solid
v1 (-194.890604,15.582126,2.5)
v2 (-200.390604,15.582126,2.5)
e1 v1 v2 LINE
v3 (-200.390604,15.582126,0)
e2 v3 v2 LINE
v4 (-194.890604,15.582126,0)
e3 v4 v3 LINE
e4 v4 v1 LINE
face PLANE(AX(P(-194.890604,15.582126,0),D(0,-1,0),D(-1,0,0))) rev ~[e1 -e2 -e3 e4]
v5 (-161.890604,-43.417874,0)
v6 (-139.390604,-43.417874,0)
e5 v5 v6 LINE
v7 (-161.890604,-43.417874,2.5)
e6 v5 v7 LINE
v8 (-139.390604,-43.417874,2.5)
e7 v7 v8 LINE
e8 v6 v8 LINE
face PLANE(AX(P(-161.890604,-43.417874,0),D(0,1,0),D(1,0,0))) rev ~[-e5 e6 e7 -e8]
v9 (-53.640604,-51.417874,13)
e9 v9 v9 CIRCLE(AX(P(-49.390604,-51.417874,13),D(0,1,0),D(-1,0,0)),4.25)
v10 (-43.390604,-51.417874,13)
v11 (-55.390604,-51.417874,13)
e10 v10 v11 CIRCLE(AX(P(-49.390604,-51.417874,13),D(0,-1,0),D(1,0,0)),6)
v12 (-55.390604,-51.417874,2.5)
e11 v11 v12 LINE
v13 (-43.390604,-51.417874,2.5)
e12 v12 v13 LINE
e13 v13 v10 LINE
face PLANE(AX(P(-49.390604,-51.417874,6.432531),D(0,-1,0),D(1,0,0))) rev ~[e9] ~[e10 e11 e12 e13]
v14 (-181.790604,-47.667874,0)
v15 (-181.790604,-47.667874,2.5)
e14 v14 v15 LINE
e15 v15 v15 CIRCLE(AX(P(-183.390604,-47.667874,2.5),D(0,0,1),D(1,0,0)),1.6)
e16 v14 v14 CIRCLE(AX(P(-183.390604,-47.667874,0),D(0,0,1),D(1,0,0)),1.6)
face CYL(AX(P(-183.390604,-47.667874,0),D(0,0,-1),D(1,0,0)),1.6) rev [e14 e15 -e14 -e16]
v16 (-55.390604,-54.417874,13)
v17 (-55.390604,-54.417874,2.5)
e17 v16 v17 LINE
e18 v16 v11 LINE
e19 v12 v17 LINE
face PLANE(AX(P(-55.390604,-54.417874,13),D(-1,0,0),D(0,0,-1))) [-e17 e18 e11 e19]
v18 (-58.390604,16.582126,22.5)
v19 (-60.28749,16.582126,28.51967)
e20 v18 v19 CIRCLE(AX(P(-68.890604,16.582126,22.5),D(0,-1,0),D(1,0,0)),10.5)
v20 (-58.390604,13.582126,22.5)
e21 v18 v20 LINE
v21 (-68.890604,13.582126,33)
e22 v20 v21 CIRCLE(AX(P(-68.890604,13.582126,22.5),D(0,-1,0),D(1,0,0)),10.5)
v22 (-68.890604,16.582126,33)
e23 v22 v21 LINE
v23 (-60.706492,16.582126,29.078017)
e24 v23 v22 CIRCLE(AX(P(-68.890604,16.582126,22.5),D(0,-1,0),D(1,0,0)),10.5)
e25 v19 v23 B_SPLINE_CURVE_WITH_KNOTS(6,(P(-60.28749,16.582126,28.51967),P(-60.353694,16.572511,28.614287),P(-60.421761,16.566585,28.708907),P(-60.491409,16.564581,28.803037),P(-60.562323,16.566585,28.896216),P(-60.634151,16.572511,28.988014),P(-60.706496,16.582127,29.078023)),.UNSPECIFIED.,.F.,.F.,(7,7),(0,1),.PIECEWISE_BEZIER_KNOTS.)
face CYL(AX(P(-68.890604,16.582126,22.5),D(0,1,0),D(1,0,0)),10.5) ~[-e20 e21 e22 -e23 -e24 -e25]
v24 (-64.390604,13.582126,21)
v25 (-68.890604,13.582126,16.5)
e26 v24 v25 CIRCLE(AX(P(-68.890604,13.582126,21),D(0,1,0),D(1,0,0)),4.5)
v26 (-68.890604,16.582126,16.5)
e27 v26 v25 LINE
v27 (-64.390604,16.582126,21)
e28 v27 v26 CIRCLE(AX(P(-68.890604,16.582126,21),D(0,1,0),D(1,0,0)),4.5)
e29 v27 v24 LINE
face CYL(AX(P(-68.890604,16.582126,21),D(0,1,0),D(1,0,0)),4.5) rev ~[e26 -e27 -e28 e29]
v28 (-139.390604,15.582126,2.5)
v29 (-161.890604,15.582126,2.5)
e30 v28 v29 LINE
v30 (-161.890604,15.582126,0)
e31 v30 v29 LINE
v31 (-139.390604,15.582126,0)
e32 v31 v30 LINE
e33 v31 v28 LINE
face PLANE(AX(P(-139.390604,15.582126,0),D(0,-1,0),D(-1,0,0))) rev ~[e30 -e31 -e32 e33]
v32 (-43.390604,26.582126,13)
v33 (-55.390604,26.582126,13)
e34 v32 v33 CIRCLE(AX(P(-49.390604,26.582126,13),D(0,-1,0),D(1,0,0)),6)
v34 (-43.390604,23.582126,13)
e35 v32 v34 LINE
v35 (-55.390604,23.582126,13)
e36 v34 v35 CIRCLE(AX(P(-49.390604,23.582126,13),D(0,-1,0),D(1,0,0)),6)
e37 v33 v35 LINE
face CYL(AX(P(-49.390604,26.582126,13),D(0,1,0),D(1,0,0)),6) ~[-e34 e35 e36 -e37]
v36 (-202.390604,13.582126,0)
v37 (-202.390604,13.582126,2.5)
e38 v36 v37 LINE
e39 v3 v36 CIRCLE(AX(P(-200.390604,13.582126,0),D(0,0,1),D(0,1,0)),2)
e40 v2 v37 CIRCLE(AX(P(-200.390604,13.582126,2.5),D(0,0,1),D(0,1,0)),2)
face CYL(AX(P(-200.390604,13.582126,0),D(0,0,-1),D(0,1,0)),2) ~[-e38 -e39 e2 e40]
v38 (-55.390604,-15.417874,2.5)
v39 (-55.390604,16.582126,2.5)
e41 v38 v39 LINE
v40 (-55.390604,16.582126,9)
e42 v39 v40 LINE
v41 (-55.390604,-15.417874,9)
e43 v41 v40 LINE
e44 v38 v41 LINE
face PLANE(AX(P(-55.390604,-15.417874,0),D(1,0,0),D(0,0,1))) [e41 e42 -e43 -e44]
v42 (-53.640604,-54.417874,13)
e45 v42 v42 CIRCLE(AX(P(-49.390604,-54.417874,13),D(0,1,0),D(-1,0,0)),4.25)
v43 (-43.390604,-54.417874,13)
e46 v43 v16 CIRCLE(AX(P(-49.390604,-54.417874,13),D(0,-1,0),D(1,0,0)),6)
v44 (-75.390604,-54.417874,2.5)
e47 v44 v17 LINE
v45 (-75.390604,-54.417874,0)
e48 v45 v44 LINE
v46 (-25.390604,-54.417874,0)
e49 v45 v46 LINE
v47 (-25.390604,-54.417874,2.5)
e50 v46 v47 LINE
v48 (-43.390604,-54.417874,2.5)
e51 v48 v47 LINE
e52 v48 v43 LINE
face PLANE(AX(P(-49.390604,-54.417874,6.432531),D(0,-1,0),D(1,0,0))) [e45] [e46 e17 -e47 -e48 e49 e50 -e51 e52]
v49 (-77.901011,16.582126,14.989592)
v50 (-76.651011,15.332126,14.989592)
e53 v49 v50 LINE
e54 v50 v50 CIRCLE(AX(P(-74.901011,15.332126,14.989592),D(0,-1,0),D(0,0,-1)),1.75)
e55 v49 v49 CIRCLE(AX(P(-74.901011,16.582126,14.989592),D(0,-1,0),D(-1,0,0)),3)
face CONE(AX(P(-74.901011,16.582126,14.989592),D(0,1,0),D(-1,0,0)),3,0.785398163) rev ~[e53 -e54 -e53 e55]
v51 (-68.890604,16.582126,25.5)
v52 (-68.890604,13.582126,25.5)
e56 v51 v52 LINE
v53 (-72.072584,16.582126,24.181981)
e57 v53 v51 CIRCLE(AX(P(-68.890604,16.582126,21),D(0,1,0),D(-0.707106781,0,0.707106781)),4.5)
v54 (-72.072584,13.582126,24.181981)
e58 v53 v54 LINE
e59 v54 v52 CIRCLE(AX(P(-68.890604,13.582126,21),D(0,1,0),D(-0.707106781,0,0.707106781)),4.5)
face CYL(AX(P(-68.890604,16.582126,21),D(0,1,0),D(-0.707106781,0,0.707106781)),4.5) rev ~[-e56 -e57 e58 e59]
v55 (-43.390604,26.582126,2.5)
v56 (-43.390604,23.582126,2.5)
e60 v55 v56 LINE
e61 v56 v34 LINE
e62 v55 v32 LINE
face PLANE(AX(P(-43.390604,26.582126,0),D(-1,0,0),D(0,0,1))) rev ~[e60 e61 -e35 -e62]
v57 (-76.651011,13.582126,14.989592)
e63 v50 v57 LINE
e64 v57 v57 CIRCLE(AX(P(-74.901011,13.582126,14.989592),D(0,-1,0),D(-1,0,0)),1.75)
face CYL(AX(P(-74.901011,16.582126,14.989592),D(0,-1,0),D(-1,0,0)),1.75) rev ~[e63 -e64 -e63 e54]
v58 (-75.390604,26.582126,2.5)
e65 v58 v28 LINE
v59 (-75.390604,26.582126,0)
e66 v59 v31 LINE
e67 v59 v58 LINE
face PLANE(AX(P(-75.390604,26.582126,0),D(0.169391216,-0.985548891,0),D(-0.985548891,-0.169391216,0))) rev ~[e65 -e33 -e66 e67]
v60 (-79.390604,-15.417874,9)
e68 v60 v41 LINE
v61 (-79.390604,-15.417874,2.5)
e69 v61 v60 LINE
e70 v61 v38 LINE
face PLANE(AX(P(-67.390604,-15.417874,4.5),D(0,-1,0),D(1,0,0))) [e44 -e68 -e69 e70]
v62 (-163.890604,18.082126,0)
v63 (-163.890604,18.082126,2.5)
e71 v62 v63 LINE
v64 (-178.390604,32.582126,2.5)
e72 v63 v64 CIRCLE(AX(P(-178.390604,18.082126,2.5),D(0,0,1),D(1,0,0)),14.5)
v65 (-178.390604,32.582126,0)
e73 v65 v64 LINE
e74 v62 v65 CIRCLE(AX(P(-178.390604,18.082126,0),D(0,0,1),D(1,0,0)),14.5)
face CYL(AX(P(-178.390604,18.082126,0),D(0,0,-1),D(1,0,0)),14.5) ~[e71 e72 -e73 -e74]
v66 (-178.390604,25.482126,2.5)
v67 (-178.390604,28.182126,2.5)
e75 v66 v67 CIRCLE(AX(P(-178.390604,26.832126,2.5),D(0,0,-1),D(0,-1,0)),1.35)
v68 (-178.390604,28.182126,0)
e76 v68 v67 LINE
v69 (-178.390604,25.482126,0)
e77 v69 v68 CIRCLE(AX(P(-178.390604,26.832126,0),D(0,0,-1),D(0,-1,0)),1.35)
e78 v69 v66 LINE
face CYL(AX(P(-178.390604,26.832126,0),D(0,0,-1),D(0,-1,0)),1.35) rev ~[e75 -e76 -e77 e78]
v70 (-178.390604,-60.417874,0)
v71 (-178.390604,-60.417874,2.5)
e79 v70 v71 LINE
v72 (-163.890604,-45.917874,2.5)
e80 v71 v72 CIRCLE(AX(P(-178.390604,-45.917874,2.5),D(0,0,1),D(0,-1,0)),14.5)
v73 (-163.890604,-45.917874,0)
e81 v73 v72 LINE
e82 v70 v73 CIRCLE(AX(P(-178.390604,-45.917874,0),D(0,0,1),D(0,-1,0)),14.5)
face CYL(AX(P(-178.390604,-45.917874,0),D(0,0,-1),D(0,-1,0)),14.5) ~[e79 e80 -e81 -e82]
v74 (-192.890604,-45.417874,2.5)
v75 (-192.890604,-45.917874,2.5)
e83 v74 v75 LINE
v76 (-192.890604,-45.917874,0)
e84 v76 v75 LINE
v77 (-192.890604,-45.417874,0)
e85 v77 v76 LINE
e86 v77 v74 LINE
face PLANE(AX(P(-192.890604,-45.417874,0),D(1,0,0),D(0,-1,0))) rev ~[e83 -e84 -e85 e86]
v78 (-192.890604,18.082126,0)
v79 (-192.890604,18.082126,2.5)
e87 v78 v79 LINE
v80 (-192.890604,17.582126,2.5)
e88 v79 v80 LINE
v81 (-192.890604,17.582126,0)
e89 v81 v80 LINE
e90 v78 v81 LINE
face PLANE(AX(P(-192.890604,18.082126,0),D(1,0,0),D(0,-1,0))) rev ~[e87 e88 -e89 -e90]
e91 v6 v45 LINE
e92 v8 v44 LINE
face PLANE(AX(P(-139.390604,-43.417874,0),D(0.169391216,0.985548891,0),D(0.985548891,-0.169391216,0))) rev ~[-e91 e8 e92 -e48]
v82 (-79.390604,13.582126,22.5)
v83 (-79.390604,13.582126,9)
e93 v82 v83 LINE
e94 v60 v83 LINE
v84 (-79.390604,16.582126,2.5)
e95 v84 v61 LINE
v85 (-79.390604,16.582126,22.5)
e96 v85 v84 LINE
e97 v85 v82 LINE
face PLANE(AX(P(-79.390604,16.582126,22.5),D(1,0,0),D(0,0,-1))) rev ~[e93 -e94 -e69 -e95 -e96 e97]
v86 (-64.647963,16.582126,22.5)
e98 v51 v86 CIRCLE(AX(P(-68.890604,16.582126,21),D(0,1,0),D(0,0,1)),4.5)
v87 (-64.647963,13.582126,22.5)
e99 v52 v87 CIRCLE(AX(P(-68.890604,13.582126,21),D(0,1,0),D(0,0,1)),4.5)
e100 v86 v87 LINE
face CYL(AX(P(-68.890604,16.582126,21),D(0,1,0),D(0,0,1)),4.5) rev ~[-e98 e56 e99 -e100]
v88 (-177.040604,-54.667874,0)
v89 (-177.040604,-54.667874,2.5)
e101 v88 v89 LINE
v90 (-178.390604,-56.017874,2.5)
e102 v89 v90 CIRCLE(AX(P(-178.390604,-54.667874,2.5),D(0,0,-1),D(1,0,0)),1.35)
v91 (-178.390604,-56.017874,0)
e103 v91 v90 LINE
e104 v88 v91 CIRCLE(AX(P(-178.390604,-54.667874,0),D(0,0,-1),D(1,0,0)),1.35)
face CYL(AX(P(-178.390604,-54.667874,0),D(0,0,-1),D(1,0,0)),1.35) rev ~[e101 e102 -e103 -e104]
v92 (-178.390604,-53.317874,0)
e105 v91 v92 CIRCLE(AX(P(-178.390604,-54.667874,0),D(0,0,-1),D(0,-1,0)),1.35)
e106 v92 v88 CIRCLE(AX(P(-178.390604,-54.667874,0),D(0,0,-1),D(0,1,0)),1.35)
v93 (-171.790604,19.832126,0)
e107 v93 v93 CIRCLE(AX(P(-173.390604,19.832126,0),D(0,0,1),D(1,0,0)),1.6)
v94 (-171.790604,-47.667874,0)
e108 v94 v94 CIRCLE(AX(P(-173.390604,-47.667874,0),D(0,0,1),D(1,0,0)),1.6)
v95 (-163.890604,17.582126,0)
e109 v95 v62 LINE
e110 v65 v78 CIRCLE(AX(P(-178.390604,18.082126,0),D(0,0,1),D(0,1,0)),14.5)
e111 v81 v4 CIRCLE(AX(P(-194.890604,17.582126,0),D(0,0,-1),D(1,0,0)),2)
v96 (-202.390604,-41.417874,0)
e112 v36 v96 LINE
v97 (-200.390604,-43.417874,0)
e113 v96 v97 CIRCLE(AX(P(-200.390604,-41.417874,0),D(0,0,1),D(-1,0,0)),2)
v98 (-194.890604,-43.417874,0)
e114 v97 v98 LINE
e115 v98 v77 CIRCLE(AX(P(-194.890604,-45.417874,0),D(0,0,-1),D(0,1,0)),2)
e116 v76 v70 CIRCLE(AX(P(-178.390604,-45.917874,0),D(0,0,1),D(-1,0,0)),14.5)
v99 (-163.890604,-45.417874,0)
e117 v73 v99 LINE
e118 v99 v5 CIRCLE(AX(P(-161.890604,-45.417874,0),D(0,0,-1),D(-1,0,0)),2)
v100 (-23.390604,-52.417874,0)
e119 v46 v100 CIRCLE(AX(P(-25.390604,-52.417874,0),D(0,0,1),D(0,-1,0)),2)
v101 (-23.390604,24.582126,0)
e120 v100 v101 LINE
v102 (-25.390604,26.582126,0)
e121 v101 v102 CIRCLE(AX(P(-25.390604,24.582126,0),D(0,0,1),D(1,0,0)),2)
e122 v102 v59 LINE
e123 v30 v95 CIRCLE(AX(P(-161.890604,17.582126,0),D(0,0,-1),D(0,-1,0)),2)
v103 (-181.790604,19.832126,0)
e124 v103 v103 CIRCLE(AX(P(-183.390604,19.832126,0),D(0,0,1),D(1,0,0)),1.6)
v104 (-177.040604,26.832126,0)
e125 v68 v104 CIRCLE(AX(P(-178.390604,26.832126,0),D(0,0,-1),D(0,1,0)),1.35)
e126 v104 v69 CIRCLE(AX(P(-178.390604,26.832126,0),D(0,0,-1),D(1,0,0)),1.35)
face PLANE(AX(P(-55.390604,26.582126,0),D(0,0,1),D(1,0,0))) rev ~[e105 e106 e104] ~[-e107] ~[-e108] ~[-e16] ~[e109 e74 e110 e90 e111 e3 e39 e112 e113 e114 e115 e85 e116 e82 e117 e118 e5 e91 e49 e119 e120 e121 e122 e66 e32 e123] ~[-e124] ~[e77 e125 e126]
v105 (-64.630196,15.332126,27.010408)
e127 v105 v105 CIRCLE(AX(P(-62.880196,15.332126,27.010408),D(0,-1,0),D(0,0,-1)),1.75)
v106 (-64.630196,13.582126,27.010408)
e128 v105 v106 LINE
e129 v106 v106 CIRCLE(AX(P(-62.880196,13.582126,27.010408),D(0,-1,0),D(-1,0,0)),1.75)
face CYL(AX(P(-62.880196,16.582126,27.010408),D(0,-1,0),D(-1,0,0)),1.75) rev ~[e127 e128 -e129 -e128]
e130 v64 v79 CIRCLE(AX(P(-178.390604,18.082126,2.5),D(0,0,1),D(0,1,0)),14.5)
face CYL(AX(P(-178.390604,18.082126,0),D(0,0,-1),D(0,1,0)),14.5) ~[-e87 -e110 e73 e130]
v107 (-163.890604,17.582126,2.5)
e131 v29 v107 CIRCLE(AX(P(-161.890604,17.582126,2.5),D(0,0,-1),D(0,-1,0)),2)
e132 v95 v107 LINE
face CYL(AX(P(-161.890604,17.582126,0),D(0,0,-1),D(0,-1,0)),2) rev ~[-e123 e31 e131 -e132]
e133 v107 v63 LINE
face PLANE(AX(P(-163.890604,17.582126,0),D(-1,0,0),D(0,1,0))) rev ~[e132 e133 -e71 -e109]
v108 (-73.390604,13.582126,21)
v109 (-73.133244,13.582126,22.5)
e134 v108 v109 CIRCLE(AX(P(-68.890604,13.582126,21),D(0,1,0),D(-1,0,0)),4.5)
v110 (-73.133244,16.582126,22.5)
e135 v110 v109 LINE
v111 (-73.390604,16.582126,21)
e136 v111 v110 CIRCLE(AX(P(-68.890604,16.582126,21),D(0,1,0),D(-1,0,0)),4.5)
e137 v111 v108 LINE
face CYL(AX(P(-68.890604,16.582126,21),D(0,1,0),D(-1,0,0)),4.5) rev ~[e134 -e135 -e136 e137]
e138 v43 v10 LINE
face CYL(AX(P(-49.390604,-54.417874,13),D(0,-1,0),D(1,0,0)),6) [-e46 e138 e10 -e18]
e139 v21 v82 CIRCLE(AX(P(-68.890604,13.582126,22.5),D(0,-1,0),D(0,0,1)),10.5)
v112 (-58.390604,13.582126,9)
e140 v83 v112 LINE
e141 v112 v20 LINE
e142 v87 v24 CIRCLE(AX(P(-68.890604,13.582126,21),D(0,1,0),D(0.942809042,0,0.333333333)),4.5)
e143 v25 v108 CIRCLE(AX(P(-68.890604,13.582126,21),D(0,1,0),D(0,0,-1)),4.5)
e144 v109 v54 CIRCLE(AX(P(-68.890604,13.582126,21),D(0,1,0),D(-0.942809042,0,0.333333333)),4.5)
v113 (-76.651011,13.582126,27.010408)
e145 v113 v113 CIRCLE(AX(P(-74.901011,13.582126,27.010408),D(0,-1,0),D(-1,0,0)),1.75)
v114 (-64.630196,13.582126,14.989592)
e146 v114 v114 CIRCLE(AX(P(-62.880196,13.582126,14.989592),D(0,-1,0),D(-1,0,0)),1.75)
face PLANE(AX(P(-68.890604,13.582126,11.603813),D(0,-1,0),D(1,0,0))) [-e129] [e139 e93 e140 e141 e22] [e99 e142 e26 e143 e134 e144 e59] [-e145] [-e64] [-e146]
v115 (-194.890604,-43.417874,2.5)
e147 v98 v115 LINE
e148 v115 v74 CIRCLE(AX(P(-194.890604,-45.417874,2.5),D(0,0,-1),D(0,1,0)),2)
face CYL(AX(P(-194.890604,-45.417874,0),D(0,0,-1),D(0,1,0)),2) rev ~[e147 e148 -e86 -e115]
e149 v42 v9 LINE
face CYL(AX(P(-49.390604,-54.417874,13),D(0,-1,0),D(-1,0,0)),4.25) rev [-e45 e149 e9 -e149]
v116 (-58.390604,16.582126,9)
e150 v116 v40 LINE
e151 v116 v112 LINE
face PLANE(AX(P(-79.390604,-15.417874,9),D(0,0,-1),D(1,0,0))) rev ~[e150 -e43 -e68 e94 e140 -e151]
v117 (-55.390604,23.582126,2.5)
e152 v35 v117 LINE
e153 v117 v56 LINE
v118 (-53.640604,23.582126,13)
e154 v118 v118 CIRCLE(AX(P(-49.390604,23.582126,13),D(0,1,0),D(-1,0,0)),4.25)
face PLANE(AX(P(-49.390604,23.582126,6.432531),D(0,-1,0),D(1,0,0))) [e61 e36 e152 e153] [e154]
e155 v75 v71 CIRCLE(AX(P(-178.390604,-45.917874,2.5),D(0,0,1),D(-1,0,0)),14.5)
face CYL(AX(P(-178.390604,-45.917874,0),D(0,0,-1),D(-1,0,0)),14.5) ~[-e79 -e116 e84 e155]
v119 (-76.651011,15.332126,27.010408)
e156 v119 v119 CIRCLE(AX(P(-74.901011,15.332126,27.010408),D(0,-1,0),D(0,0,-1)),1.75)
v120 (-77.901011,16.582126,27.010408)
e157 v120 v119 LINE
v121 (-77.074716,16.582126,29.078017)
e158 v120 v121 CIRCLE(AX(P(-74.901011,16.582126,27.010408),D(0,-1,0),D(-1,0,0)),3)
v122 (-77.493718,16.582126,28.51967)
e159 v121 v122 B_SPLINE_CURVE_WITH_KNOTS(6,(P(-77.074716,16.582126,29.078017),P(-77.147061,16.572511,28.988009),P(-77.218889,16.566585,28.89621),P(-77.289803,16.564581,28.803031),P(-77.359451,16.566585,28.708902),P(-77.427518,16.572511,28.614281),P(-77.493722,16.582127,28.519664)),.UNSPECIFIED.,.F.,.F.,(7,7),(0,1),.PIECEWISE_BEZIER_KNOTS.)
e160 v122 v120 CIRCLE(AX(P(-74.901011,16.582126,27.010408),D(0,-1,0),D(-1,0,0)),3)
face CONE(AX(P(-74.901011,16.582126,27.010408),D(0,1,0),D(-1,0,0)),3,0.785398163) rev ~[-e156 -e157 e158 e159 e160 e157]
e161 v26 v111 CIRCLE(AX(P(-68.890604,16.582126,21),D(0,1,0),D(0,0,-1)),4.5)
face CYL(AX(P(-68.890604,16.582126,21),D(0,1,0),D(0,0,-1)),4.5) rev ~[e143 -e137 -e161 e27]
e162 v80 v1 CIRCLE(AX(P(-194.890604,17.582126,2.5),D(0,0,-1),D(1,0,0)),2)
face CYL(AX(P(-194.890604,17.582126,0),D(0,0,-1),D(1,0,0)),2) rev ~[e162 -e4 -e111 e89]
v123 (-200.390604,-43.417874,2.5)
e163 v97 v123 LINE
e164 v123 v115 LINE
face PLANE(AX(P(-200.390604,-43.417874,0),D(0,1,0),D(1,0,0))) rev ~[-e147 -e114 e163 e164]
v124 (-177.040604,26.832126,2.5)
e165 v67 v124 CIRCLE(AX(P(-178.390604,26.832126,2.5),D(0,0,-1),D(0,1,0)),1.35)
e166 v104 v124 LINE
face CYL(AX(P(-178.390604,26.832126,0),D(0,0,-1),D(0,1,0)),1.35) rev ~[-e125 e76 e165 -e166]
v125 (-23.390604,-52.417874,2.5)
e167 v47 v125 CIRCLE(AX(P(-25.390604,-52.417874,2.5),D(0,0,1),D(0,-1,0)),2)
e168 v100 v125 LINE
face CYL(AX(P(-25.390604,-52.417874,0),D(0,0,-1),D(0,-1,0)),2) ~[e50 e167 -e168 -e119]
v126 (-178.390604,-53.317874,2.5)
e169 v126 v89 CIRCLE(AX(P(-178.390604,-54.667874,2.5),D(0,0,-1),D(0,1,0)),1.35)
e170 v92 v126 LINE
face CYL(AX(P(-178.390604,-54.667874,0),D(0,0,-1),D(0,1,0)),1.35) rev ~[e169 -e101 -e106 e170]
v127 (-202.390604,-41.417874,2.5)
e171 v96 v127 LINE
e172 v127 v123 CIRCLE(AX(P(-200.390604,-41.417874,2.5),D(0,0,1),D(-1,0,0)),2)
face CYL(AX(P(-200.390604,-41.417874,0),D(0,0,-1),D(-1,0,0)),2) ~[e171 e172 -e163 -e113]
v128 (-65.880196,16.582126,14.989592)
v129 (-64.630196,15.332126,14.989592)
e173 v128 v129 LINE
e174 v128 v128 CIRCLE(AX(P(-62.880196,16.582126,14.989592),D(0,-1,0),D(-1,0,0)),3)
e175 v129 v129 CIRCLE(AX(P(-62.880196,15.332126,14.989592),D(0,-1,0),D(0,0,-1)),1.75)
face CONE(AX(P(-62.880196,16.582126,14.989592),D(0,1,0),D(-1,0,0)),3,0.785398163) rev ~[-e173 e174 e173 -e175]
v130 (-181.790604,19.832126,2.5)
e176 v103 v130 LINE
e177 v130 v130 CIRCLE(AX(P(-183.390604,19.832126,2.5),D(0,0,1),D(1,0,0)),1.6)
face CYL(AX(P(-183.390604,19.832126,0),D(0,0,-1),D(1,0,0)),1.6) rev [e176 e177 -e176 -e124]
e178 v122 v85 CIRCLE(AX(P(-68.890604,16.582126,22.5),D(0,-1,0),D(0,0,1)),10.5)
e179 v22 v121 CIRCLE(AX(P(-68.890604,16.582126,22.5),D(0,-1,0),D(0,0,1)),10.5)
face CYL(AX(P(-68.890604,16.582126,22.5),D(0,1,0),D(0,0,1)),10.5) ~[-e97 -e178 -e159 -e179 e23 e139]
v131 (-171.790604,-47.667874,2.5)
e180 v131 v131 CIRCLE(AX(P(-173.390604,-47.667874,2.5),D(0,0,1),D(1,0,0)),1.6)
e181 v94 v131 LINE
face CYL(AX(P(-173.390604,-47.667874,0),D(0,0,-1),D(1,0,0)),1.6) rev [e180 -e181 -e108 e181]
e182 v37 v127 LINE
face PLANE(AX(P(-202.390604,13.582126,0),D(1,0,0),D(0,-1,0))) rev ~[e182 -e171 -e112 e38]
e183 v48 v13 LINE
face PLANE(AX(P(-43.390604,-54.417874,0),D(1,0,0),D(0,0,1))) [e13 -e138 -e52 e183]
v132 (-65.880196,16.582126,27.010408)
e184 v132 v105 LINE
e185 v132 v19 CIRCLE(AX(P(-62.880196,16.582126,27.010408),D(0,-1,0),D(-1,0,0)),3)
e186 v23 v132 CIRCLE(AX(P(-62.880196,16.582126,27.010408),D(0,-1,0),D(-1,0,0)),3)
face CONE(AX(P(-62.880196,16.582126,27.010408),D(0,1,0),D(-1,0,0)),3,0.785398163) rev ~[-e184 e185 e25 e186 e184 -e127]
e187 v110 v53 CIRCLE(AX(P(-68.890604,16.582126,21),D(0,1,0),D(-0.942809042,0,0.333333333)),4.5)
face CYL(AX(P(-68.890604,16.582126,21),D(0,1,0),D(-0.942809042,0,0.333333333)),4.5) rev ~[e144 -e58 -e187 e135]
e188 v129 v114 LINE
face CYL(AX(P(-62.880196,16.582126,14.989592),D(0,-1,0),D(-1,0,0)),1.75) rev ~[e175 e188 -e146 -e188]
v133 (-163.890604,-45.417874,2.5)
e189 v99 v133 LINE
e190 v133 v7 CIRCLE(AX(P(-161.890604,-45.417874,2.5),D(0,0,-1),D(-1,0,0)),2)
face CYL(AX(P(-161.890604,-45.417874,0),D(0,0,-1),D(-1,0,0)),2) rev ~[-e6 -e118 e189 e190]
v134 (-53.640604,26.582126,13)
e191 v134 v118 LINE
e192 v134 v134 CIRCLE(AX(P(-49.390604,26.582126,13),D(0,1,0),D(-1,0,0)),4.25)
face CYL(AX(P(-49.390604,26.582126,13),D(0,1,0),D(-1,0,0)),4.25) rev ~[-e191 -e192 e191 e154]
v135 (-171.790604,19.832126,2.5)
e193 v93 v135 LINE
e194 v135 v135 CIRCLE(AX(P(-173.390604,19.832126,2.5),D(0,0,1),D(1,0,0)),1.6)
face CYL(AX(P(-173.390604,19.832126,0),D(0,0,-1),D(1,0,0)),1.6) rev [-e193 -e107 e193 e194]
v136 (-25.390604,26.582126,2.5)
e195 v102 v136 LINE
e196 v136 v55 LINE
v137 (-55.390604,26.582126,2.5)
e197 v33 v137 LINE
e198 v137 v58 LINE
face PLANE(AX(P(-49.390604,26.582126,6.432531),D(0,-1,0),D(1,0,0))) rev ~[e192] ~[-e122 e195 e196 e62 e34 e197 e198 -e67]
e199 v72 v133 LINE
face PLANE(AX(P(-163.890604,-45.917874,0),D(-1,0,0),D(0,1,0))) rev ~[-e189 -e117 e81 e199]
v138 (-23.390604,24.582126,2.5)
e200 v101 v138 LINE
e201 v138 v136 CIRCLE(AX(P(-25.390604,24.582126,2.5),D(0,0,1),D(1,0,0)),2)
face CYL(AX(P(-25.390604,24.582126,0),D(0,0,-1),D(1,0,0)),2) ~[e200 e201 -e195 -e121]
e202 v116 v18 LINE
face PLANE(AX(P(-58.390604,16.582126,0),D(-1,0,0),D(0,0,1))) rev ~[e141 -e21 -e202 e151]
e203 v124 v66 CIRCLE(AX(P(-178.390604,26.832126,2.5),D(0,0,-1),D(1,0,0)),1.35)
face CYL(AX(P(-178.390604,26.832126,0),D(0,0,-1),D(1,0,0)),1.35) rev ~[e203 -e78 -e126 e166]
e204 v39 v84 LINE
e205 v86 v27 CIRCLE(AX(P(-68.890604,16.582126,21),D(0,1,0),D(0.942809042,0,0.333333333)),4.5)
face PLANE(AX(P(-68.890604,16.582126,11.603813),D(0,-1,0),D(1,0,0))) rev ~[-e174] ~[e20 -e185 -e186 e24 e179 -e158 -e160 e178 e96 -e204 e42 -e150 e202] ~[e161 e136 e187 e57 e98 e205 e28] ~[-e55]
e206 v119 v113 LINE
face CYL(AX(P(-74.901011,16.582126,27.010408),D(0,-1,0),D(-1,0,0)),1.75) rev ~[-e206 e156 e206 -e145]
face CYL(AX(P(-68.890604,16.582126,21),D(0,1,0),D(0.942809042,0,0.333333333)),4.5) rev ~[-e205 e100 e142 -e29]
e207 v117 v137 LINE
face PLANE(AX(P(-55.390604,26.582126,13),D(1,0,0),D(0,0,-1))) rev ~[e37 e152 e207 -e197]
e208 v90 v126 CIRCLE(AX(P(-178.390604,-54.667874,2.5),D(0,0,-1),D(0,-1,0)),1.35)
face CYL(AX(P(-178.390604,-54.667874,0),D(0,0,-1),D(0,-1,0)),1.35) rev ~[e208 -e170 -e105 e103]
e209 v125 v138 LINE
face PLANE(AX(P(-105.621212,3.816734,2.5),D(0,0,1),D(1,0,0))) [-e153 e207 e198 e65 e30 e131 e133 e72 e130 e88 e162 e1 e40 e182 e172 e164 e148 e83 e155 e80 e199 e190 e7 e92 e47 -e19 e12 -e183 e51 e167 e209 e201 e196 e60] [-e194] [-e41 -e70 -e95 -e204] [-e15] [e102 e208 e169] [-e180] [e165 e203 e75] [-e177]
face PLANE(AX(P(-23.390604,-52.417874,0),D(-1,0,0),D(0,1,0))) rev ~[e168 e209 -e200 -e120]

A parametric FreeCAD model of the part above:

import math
import FreeCAD as App
import Part
import Sketcher

V = App.Vector
Q = App.Units.Quantity


def add_polygon(sketch, points):
    """Adds a closed chain of lines whose ends are joined by coincident constraints."""
    first, n = sketch.GeometryCount, len(points)
    for a, b in zip(points, points[1:] + points[:1]):
        sketch.addGeometry(Part.LineSegment(App.Vector(*a, 0), App.Vector(*b, 0)), False)
    for i in range(n):
        sketch.addConstraint(Sketcher.Constraint("Coincident", first + i, 2, first + (i + 1) % n, 1))

doc = App.newDocument("Part")
body = doc.addObject("PartDesign::Body", "Body")

sketch1 = doc.addObject("Sketcher::SketchObject", "Sketch")
body.addObject(sketch1)
sketch1.AttachmentSupport = (doc.XY_Plane, [""])
sketch1.MapMode = "FlatFace"
sketch1.addGeometry(Part.LineSegment(V(-75.4, 26.6, 0), V(-139.4, 15.6, 0)), False)
sketch1.addGeometry(Part.LineSegment(V(-139.4, 15.6, 0), V(-161.9, 15.6, 0)), False)
sketch1.addGeometry(Part.ArcOfCircle(Part.Circle(V(-161.9, 17.6, 0), V(0, 0, 1), 2), math.radians(180), math.radians(270)), False)
sketch1.addGeometry(Part.LineSegment(V(-163.9, 17.6, 0), V(-163.9, 18.1, 0)), False)
sketch1.addGeometry(Part.ArcOfCircle(Part.Circle(V(-178.4, 18.1, 0), V(0, 0, 1), 14.5), math.radians(0), math.radians(90)), False)
sketch1.addGeometry(Part.ArcOfCircle(Part.Circle(V(-178.4, 18.1, 0), V(0, 0, 1), 14.5), math.radians(90), math.radians(180)), False)
sketch1.addGeometry(Part.LineSegment(V(-192.9, 18.1, 0), V(-192.9, 17.6, 0)), False)
sketch1.addGeometry(Part.ArcOfCircle(Part.Circle(V(-194.9, 17.6, 0), V(0, 0, 1), 2), math.radians(-90), math.radians(0)), False)
sketch1.addGeometry(Part.LineSegment(V(-194.9, 15.6, 0), V(-200.4, 15.6, 0)), False)
sketch1.addGeometry(Part.ArcOfCircle(Part.Circle(V(-200.4, 13.6, 0), V(0, 0, 1), 2), math.radians(90), math.radians(180)), False)
sketch1.addGeometry(Part.LineSegment(V(-202.4, 13.6, 0), V(-202.4, -41.4, 0)), False)
sketch1.addGeometry(Part.ArcOfCircle(Part.Circle(V(-200.4, -41.4, 0), V(0, 0, 1), 2), math.radians(180), math.radians(270)), False)
sketch1.addGeometry(Part.LineSegment(V(-200.4, -43.4, 0), V(-194.9, -43.4, 0)), False)
sketch1.addGeometry(Part.ArcOfCircle(Part.Circle(V(-194.9, -45.4, 0), V(0, 0, 1), 2), math.radians(0), math.radians(90)), False)
sketch1.addGeometry(Part.LineSegment(V(-192.9, -45.4, 0), V(-192.9, -45.9, 0)), False)
sketch1.addGeometry(Part.ArcOfCircle(Part.Circle(V(-178.4, -45.9, 0), V(0, 0, 1), 14.5), math.radians(180), math.radians(270)), False)
sketch1.addGeometry(Part.ArcOfCircle(Part.Circle(V(-178.4, -45.9, 0), V(0, 0, 1), 14.5), math.radians(-90), math.radians(0)), False)
sketch1.addGeometry(Part.LineSegment(V(-163.9, -45.9, 0), V(-163.9, -45.4, 0)), False)
sketch1.addGeometry(Part.ArcOfCircle(Part.Circle(V(-161.9, -45.4, 0), V(0, 0, 1), 2), math.radians(90), math.radians(180)), False)
sketch1.addGeometry(Part.LineSegment(V(-161.9, -43.4, 0), V(-139.4, -43.4, 0)), False)
sketch1.addGeometry(Part.LineSegment(V(-139.4, -43.4, 0), V(-75.4, -54.4, 0)), False)
sketch1.addGeometry(Part.LineSegment(V(-75.4, -54.4, 0), V(-25.4, -54.4, 0)), False)
sketch1.addGeometry(Part.ArcOfCircle(Part.Circle(V(-25.4, -52.4, 0), V(0, 0, 1), 2), math.radians(-90), math.radians(0)), False)
sketch1.addGeometry(Part.LineSegment(V(-23.4, -52.4, 0), V(-23.4, 24.6, 0)), False)
sketch1.addGeometry(Part.ArcOfCircle(Part.Circle(V(-25.4, 24.6, 0), V(0, 0, 1), 2), math.radians(0), math.radians(90)), False)
sketch1.addGeometry(Part.LineSegment(V(-25.4, 26.6, 0), V(-75.4, 26.6, 0)), False)
sketch1.addGeometry(Part.Circle(V(-183.4, -47.7, 0), V(0, 0, 1), 1.6), False)
sketch1.addGeometry(Part.ArcOfCircle(Part.Circle(V(-178.4, -54.7, 0), V(0, 0, 1), 1.4), math.radians(0), math.radians(90)), False)
sketch1.addGeometry(Part.ArcOfCircle(Part.Circle(V(-178.4, -54.7, 0), V(0, 0, 1), 1.4), math.radians(-90), math.radians(0)), False)
sketch1.addGeometry(Part.ArcOfCircle(Part.Circle(V(-178.4, -54.7, 0), V(0, 0, 1), 1.4), math.radians(90), math.radians(270)), False)
sketch1.addGeometry(Part.Circle(V(-173.4, -47.7, 0), V(0, 0, 1), 1.6), False)
sketch1.addGeometry(Part.Circle(V(-183.4, 19.8, 0), V(0, 0, 1), 1.6), False)
sketch1.addGeometry(Part.ArcOfCircle(Part.Circle(V(-178.4, 26.8, 0), V(0, 0, 1), 1.4), math.radians(0), math.radians(90)), False)
sketch1.addGeometry(Part.ArcOfCircle(Part.Circle(V(-178.4, 26.8, 0), V(0, 0, 1), 1.4), math.radians(-90), math.radians(0)), False)
sketch1.addGeometry(Part.ArcOfCircle(Part.Circle(V(-178.4, 26.8, 0), V(0, 0, 1), 1.4), math.radians(90), math.radians(270)), False)
sketch1.addGeometry(Part.Circle(V(-173.4, 19.8, 0), V(0, 0, 1), 1.6), False)
sketch1.addConstraint(Sketcher.Constraint("Coincident", 0, 2, 1, 1))
sketch1.addConstraint(Sketcher.Constraint("Tangent", 1, 2, 2, 2))
sketch1.addConstraint(Sketcher.Constraint("Tangent", 2, 1, 3, 1))
sketch1.addConstraint(Sketcher.Constraint("Tangent", 3, 2, 4, 1))
sketch1.addConstraint(Sketcher.Constraint("Tangent", 4, 2, 5, 1))
sketch1.addConstraint(Sketcher.Constraint("Tangent", 5, 2, 6, 1))
sketch1.addConstraint(Sketcher.Constraint("Tangent", 6, 2, 7, 2))
sketch1.addConstraint(Sketcher.Constraint("Tangent", 7, 1, 8, 1))
sketch1.addConstraint(Sketcher.Constraint("Tangent", 8, 2, 9, 1))
sketch1.addConstraint(Sketcher.Constraint("Tangent", 9, 2, 10, 1))
sketch1.addConstraint(Sketcher.Constraint("Tangent", 10, 2, 11, 1))
sketch1.addConstraint(Sketcher.Constraint("Tangent", 11, 2, 12, 1))
sketch1.addConstraint(Sketcher.Constraint("Tangent", 12, 2, 13, 2))
sketch1.addConstraint(Sketcher.Constraint("Tangent", 13, 1, 14, 1))
sketch1.addConstraint(Sketcher.Constraint("Tangent", 14, 2, 15, 1))
sketch1.addConstraint(Sketcher.Constraint("Tangent", 15, 2, 16, 1))
sketch1.addConstraint(Sketcher.Constraint("Tangent", 16, 2, 17, 1))
sketch1.addConstraint(Sketcher.Constraint("Tangent", 17, 2, 18, 2))
sketch1.addConstraint(Sketcher.Constraint("Tangent", 18, 1, 19, 1))
sketch1.addConstraint(Sketcher.Constraint("Coincident", 19, 2, 20, 1))
sketch1.addConstraint(Sketcher.Constraint("Coincident", 20, 2, 21, 1))
sketch1.addConstraint(Sketcher.Constraint("Tangent", 21, 2, 22, 1))
sketch1.addConstraint(Sketcher.Constraint("Tangent", 22, 2, 23, 1))
sketch1.addConstraint(Sketcher.Constraint("Tangent", 23, 2, 24, 1))
sketch1.addConstraint(Sketcher.Constraint("Tangent", 24, 2, 25, 1))
sketch1.addConstraint(Sketcher.Constraint("Coincident", 25, 2, 0, 1))
sketch1.addConstraint(Sketcher.Constraint("Tangent", 27, 1, 28, 2))
sketch1.addConstraint(Sketcher.Constraint("Tangent", 28, 1, 29, 2))
sketch1.addConstraint(Sketcher.Constraint("Tangent", 29, 1, 27, 2))
sketch1.addConstraint(Sketcher.Constraint("Tangent", 32, 1, 33, 2))
sketch1.addConstraint(Sketcher.Constraint("Tangent", 33, 1, 34, 2))
sketch1.addConstraint(Sketcher.Constraint("Tangent", 34, 1, 32, 2))
sketch1.addConstraint(Sketcher.Constraint("Horizontal", 1))
sketch1.addConstraint(Sketcher.Constraint("Vertical", 3))
sketch1.addConstraint(Sketcher.Constraint("Vertical", 6))
sketch1.addConstraint(Sketcher.Constraint("Horizontal", 8))
sketch1.addConstraint(Sketcher.Constraint("Vertical", 10))
sketch1.addConstraint(Sketcher.Constraint("Horizontal", 12))
sketch1.addConstraint(Sketcher.Constraint("Vertical", 14))
sketch1.addConstraint(Sketcher.Constraint("Vertical", 17))
sketch1.addConstraint(Sketcher.Constraint("Horizontal", 19))
sketch1.addConstraint(Sketcher.Constraint("Horizontal", 21))
sketch1.addConstraint(Sketcher.Constraint("Vertical", 23))
sketch1.addConstraint(Sketcher.Constraint("Horizontal", 25))
sketch1.addConstraint(Sketcher.Constraint("Equal", 4, 5))
sketch1.addConstraint(Sketcher.Constraint("Equal", 2, 7))
sketch1.addConstraint(Sketcher.Constraint("Equal", 7, 9))
sketch1.addConstraint(Sketcher.Constraint("Equal", 9, 11))
sketch1.addConstraint(Sketcher.Constraint("Equal", 11, 13))
sketch1.addConstraint(Sketcher.Constraint("Equal", 5, 15))
sketch1.addConstraint(Sketcher.Constraint("Equal", 15, 16))
sketch1.addConstraint(Sketcher.Constraint("Equal", 13, 18))
sketch1.addConstraint(Sketcher.Constraint("Equal", 18, 22))
sketch1.addConstraint(Sketcher.Constraint("Equal", 22, 24))
sketch1.addConstraint(Sketcher.Constraint("Equal", 26, 30))
sketch1.addConstraint(Sketcher.Constraint("Equal", 30, 31))
sketch1.addConstraint(Sketcher.Constraint("Equal", 29, 32))
sketch1.addConstraint(Sketcher.Constraint("Equal", 31, 35))
sketch1.addConstraint(Sketcher.Constraint("Horizontal", 2, 3, 7, 3))
sketch1.addConstraint(Sketcher.Constraint("Horizontal", 13, 3, 18, 3))
sketch1.addConstraint(Sketcher.Constraint("Horizontal", 26, 3, 30, 3))
sketch1.addConstraint(Sketcher.Constraint("Horizontal", 31, 3, 35, 3))
sketch1.addConstraint(Sketcher.Constraint("Horizontal", 29, 3, 27, 1))
sketch1.addConstraint(Sketcher.Constraint("Horizontal", 34, 3, 32, 1))
sketch1.addConstraint(Sketcher.Constraint("Vertical", 7, 3, 13, 3))
sketch1.addConstraint(Sketcher.Constraint("Vertical", 16, 3, 27, 3))
sketch1.addConstraint(Sketcher.Constraint("Vertical", 26, 3, 31, 3))
sketch1.addConstraint(Sketcher.Constraint("Vertical", 29, 3, 32, 3))
sketch1.addConstraint(Sketcher.Constraint("Vertical", 30, 3, 35, 3))
sketch1.addConstraint(Sketcher.Constraint("Vertical", 34, 3, 4, 2))
sketch1.addConstraint(Sketcher.Constraint("Vertical", 4, 2, 15, 2))
sketch1.addConstraint(Sketcher.Constraint("Vertical", 0, 2, 19, 2))
sketch1.addConstraint(Sketcher.Constraint("Vertical", 20, 2, 25, 2))
sketch1.addConstraint(Sketcher.Constraint("Vertical", 15, 2, 28, 1))
sketch1.addConstraint(Sketcher.Constraint("Vertical", 28, 1, 29, 1))
sketch1.addConstraint(Sketcher.Constraint("Vertical", 29, 1, 33, 1))
sketch1.addConstraint(Sketcher.Constraint("Vertical", 33, 1, 34, 1))
sketch1.addConstraint(Sketcher.Constraint("Equal", 6, 14))
sketch1.addConstraint(Sketcher.Constraint("Equal", 0, 20))
sketch1.addConstraint(Sketcher.Constraint("Radius", 2, Q("2 mm")))
sketch1.addConstraint(Sketcher.Constraint("Diameter", 26, Q("3.2 mm")))
sketch1.addConstraint(Sketcher.Constraint("Radius", 4, Q("14.5 mm")))
sketch1.addConstraint(Sketcher.Constraint("DistanceX", 21, 1, 21, 2, Q("50 mm")))
sketch1.addConstraint(Sketcher.Constraint("DistanceY", 10, 2, 10, 1, Q("55 mm")))
sketch1.addConstraint(Sketcher.Constraint("DistanceY", 23, 1, 23, 2, Q("77 mm")))
sketch1.addConstraint(Sketcher.Constraint("Radius", 27, Q("1.35 mm")))
sketch1.addConstraint(Sketcher.Constraint("DistanceX", 1, 2, 1, 1, Q("22.5 mm")))
sketch1.addConstraint(Sketcher.Constraint("DistanceX", 8, 2, 8, 1, Q("5.5 mm")))
sketch1.addConstraint(Sketcher.Constraint("DistanceY", 3, 1, 3, 2, Q("0.5 mm")))
sketch1.addConstraint(Sketcher.Constraint("DistanceX", 15, 3, 22, 3, Q("153 mm")))
sketch1.addConstraint(Sketcher.Constraint("DistanceX", 26, 3, 15, 3, Q("5 mm")))
sketch1.addConstraint(Sketcher.Constraint("DistanceY", 27, 3, 26, 3, Q("7 mm")))
sketch1.addConstraint(Sketcher.Constraint("DistanceX", 15, 3, 30, 3, Q("5 mm")))
sketch1.addConstraint(Sketcher.Constraint("DistanceY", 31, 3, 32, 3, Q("7 mm")))
sketch1.addConstraint(Sketcher.Constraint("DistanceY", 15, 2, 28, 1, Q("4.4 mm")))
sketch1.addConstraint(Sketcher.Constraint("DistanceY", 33, 1, 4, 2, Q("7.1 mm")))
sketch1.addConstraint(Sketcher.Constraint("DistanceX", 2, 3, -1, 1, Q("161.890604 mm")))
sketch1.addConstraint(Sketcher.Constraint("DistanceY", -1, 1, 2, 3, Q("17.582126 mm")))
pad1 = doc.addObject("PartDesign::Pad", "Pad")
body.addObject(pad1)
pad1.Profile = sketch1
pad1.Length = 2.5

sketch2 = doc.addObject("Sketcher::SketchObject", "Sketch001")
body.addObject(sketch2)
sketch2.AttachmentSupport = (doc.XZ_Plane, [""])
sketch2.MapMode = "FlatFace"
sketch2.AttachmentOffset = App.Placement(V(0, 0, 54.417874), App.Rotation())
sketch2.addGeometry(Part.LineSegment(V(-55.4, 13, 0), V(-55.4, 0, 0)), False)
sketch2.addGeometry(Part.LineSegment(V(-55.4, 0, 0), V(-43.4, 0, 0)), False)
sketch2.addGeometry(Part.LineSegment(V(-43.4, 0, 0), V(-43.4, 13, 0)), False)
sketch2.addGeometry(Part.ArcOfCircle(Part.Circle(V(-49.4, 13, 0), V(0, 0, 1), 6), math.radians(0), math.radians(180)), False)
sketch2.addGeometry(Part.Circle(V(-49.4, 13, 0), V(0, 0, 1), 4.2), False)
sketch2.addConstraint(Sketcher.Constraint("Coincident", 0, 2, 1, 1))
sketch2.addConstraint(Sketcher.Constraint("Coincident", 1, 2, 2, 1))
sketch2.addConstraint(Sketcher.Constraint("Tangent", 2, 2, 3, 1))
sketch2.addConstraint(Sketcher.Constraint("Tangent", 3, 2, 0, 1))
sketch2.addConstraint(Sketcher.Constraint("Vertical", 0))
sketch2.addConstraint(Sketcher.Constraint("Horizontal", 1))
sketch2.addConstraint(Sketcher.Constraint("Vertical", 2))
sketch2.addConstraint(Sketcher.Constraint("Coincident", 4, 3, 3, 3))
sketch2.addConstraint(Sketcher.Constraint("PointOnObject", 0, 2, -1))
sketch2.addConstraint(Sketcher.Constraint("Radius", 3, Q("6 mm")))
sketch2.addConstraint(Sketcher.Constraint("Diameter", 4, Q("8.5 mm")))
sketch2.addConstraint(Sketcher.Constraint("DistanceY", 0, 2, 0, 1, Q("13 mm")))
sketch2.addConstraint(Sketcher.Constraint("DistanceX", 3, 3, -1, 1, Q("49.390604 mm")))
pad2 = doc.addObject("PartDesign::Pad", "Pad001")
body.addObject(pad2)
pad2.Profile = sketch2
pad2.Length = 3
pad2.Reversed = True

sketch3 = doc.addObject("Sketcher::SketchObject", "Sketch002")
body.addObject(sketch3)
sketch3.AttachmentSupport = (doc.XZ_Plane, [""])
sketch3.MapMode = "FlatFace"
sketch3.AttachmentOffset = App.Placement(V(0, 0, -26.582126), App.Rotation())
sketch3.addGeometry(Part.LineSegment(V(-55.4, 13, 0), V(-55.4, 0, 0)), False)
sketch3.addGeometry(Part.LineSegment(V(-55.4, 0, 0), V(-43.4, 0, 0)), False)
sketch3.addGeometry(Part.LineSegment(V(-43.4, 0, 0), V(-43.4, 13, 0)), False)
sketch3.addGeometry(Part.ArcOfCircle(Part.Circle(V(-49.4, 13, 0), V(0, 0, 1), 6), math.radians(0), math.radians(180)), False)
sketch3.addGeometry(Part.Circle(V(-49.4, 13, 0), V(0, 0, 1), 4.2), False)
sketch3.addConstraint(Sketcher.Constraint("Coincident", 0, 2, 1, 1))
sketch3.addConstraint(Sketcher.Constraint("Coincident", 1, 2, 2, 1))
sketch3.addConstraint(Sketcher.Constraint("Tangent", 2, 2, 3, 1))
sketch3.addConstraint(Sketcher.Constraint("Tangent", 3, 2, 0, 1))
sketch3.addConstraint(Sketcher.Constraint("Vertical", 0))
sketch3.addConstraint(Sketcher.Constraint("Horizontal", 1))
sketch3.addConstraint(Sketcher.Constraint("Vertical", 2))
sketch3.addConstraint(Sketcher.Constraint("Coincident", 4, 3, 3, 3))
sketch3.addConstraint(Sketcher.Constraint("PointOnObject", 0, 2, -1))
sketch3.addConstraint(Sketcher.Constraint("Radius", 3, Q("6 mm")))
sketch3.addConstraint(Sketcher.Constraint("Diameter", 4, Q("8.5 mm")))
sketch3.addConstraint(Sketcher.Constraint("DistanceY", 0, 2, 0, 1, Q("13 mm")))
sketch3.addConstraint(Sketcher.Constraint("DistanceX", 3, 3, -1, 1, Q("49.390604 mm")))
pad3 = doc.addObject("PartDesign::Pad", "Pad002")
body.addObject(pad3)
pad3.Profile = sketch3
pad3.Length = 3

sketch4 = doc.addObject("Sketcher::SketchObject", "Sketch003")
body.addObject(sketch4)
sketch4.AttachmentSupport = (doc.XZ_Plane, [""])
sketch4.MapMode = "FlatFace"
sketch4.AttachmentOffset = App.Placement(V(0, 0, -16.582126), App.Rotation())
sketch4.addGeometry(Part.LineSegment(V(-79.4, 22.5, 0), V(-79.4, 0, 0)), False)
sketch4.addGeometry(Part.LineSegment(V(-79.4, 0, 0), V(-58.4, 0, 0)), False)
sketch4.addGeometry(Part.LineSegment(V(-58.4, 0, 0), V(-58.4, 22.5, 0)), False)
sketch4.addGeometry(Part.ArcOfCircle(Part.Circle(V(-68.9, 22.5, 0), V(0, 0, 1), 10.5), math.radians(0), math.radians(90)), False)
sketch4.addGeometry(Part.ArcOfCircle(Part.Circle(V(-68.9, 22.5, 0), V(0, 0, 1), 10.5), math.radians(90), math.radians(180)), False)
sketch4.addGeometry(Part.ArcOfCircle(Part.Circle(V(-68.9, 21, 0), V(0, 0, 1), 4.5), math.radians(0), math.radians(19.47)), False)
sketch4.addGeometry(Part.ArcOfCircle(Part.Circle(V(-68.9, 21, 0), V(0, 0, 1), 4.5), math.radians(-90), math.radians(0)), False)
sketch4.addGeometry(Part.ArcOfCircle(Part.Circle(V(-68.9, 21, 0), V(0, 0, 1), 4.5), math.radians(180), math.radians(270)), False)
sketch4.addGeometry(Part.ArcOfCircle(Part.Circle(V(-68.9, 21, 0), V(0, 0, 1), 4.5), math.radians(160.53), math.radians(180)), False)
sketch4.addGeometry(Part.ArcOfCircle(Part.Circle(V(-68.9, 21, 0), V(0, 0, 1), 4.5), math.radians(135), math.radians(161)), False)
sketch4.addGeometry(Part.ArcOfCircle(Part.Circle(V(-68.9, 21, 0), V(0, 0, 1), 4.5), math.radians(90), math.radians(135)), False)
sketch4.addGeometry(Part.ArcOfCircle(Part.Circle(V(-68.9, 21, 0), V(0, 0, 1), 4.5), math.radians(19), math.radians(90)), False)
sketch4.addConstraint(Sketcher.Constraint("Coincident", 0, 2, 1, 1))
sketch4.addConstraint(Sketcher.Constraint("Coincident", 1, 2, 2, 1))
sketch4.addConstraint(Sketcher.Constraint("Tangent", 2, 2, 3, 1))
sketch4.addConstraint(Sketcher.Constraint("Tangent", 3, 2, 4, 1))
sketch4.addConstraint(Sketcher.Constraint("Tangent", 4, 2, 0, 1))
sketch4.addConstraint(Sketcher.Constraint("Tangent", 5, 1, 6, 2))
sketch4.addConstraint(Sketcher.Constraint("Tangent", 6, 1, 7, 2))
sketch4.addConstraint(Sketcher.Constraint("Tangent", 7, 1, 8, 2))
sketch4.addConstraint(Sketcher.Constraint("Tangent", 8, 1, 9, 2))
sketch4.addConstraint(Sketcher.Constraint("Tangent", 9, 1, 10, 2))
sketch4.addConstraint(Sketcher.Constraint("Tangent", 10, 1, 11, 2))
sketch4.addConstraint(Sketcher.Constraint("Tangent", 11, 1, 5, 2))
sketch4.addConstraint(Sketcher.Constraint("Vertical", 0))
sketch4.addConstraint(Sketcher.Constraint("Horizontal", 1))
sketch4.addConstraint(Sketcher.Constraint("Vertical", 2))
sketch4.addConstraint(Sketcher.Constraint("Coincident", 7, 3, 5, 3))
sketch4.addConstraint(Sketcher.Constraint("Coincident", 9, 3, 5, 3))
sketch4.addConstraint(Sketcher.Constraint("Equal", 3, 4))
sketch4.addConstraint(Sketcher.Constraint("PointOnObject", 0, 2, -1))
sketch4.addConstraint(Sketcher.Constraint("Horizontal", 11, 3, 5, 1))
sketch4.addConstraint(Sketcher.Constraint("Horizontal", 5, 1, 7, 1))
sketch4.addConstraint(Sketcher.Constraint("Horizontal", 4, 2, 8, 1))
sketch4.addConstraint(Sketcher.Constraint("Horizontal", 8, 1, 11, 1))
sketch4.addConstraint(Sketcher.Constraint("Vertical", 4, 3, 5, 3))
sketch4.addConstraint(Sketcher.Constraint("Vertical", 11, 3, 3, 2))
sketch4.addConstraint(Sketcher.Constraint("Vertical", 3, 2, 6, 1))
sketch4.addConstraint(Sketcher.Constraint("Vertical", 6, 1, 10, 1))
sketch4.addConstraint(Sketcher.Constraint("Radius", 3, Q("10.5 mm")))
sketch4.addConstraint(Sketcher.Constraint("Radius", 5, Q("4.5 mm")))
sketch4.addConstraint(Sketcher.Constraint("DistanceY", 0, 2, 0, 1, Q("22.5 mm")))
sketch4.addConstraint(Sketcher.Constraint("DistanceY", -1, 1, 5, 3, Q("21 mm")))
sketch4.addConstraint(Sketcher.Constraint("DistanceY", -1, 1, 9, 1, Q("24.181981 mm")))
sketch4.addConstraint(Sketcher.Constraint("DistanceX", 3, 3, -1, 1, Q("68.890604 mm")))
pad4 = doc.addObject("PartDesign::Pad", "Pad003")
body.addObject(pad4)
pad4.Profile = sketch4
pad4.Length = 3

sketch5 = doc.addObject("Sketcher::SketchObject", "Sketch004")
body.addObject(sketch5)
sketch5.AttachmentSupport = (doc.XZ_Plane, [""])
sketch5.MapMode = "FlatFace"
sketch5.AttachmentOffset = App.Placement(V(0, 0, -16.582126), App.Rotation())
sketch5.addGeometry(Part.Circle(V(-74.9, 27, 0), V(0, 0, 1), 1.8), False)
sketch5.addGeometry(Part.Circle(V(-62.9, 27, 0), V(0, 0, 1), 1.8), False)
sketch5.addGeometry(Part.Circle(V(-62.9, 15, 0), V(0, 0, 1), 1.8), False)
sketch5.addGeometry(Part.Circle(V(-74.9, 15, 0), V(0, 0, 1), 1.8), False)
sketch5.addConstraint(Sketcher.Constraint("Equal", 0, 1))
sketch5.addConstraint(Sketcher.Constraint("Equal", 1, 2))
sketch5.addConstraint(Sketcher.Constraint("Equal", 2, 3))
sketch5.addConstraint(Sketcher.Constraint("Horizontal", 0, 3, 1, 3))
sketch5.addConstraint(Sketcher.Constraint("Horizontal", 2, 3, 3, 3))
sketch5.addConstraint(Sketcher.Constraint("Vertical", 1, 3, 2, 3))
sketch5.addConstraint(Sketcher.Constraint("Vertical", 0, 3, 3, 3))
sketch5.addConstraint(Sketcher.Constraint("Diameter", 0, Q("3.5 mm")))
sketch5.addConstraint(Sketcher.Constraint("DistanceX", 0, 3, -1, 1, Q("74.901011 mm")))
sketch5.addConstraint(Sketcher.Constraint("DistanceY", -1, 1, 0, 3, Q("27.010408 mm")))
sketch5.addConstraint(Sketcher.Constraint("DistanceX", 1, 3, -1, 1, Q("62.880196 mm")))
sketch5.addConstraint(Sketcher.Constraint("DistanceY", -1, 1, 2, 3, Q("14.989592 mm")))
doc.recompute()
hole = doc.addObject("PartDesign::Hole", "Hole")
body.addObject(hole)
hole.Profile = sketch5
hole.ThreadType = "None"
hole.Diameter = 3.5
hole.DepthType = "ThroughAll"
hole.HoleCutType = "Countersink"
hole.HoleCutDiameter = 6
hole.HoleCutCountersinkAngle = 90
hole.Reversed = True

sketch6 = doc.addObject("Sketcher::SketchObject", "Sketch005")
body.addObject(sketch6)
sketch6.AttachmentSupport = (doc.XZ_Plane, [""])
sketch6.MapMode = "FlatFace"
sketch6.AttachmentOffset = App.Placement(V(0, 0, 15.417874), App.Rotation())
add_polygon(sketch6, [(-79, 9), (-79, 0), (-55, 0), (-55, 9)])
sketch6.addConstraint(Sketcher.Constraint("Vertical", 0))
sketch6.addConstraint(Sketcher.Constraint("Horizontal", 1))
sketch6.addConstraint(Sketcher.Constraint("Vertical", 2))
sketch6.addConstraint(Sketcher.Constraint("Horizontal", 3))
sketch6.addConstraint(Sketcher.Constraint("PointOnObject", 0, 2, -1))
sketch6.addConstraint(Sketcher.Constraint("DistanceX", 1, 1, 1, 2, Q("24 mm")))
sketch6.addConstraint(Sketcher.Constraint("DistanceY", 0, 2, 0, 1, Q("9 mm")))
sketch6.addConstraint(Sketcher.Constraint("DistanceX", 0, 2, -1, 1, Q("79.390604 mm")))
pad5 = doc.addObject("PartDesign::Pad", "Pad004")
body.addObject(pad5)
pad5.Profile = sketch6
pad5.Length = 32
pad5.Reversed = True

doc.recompute()
